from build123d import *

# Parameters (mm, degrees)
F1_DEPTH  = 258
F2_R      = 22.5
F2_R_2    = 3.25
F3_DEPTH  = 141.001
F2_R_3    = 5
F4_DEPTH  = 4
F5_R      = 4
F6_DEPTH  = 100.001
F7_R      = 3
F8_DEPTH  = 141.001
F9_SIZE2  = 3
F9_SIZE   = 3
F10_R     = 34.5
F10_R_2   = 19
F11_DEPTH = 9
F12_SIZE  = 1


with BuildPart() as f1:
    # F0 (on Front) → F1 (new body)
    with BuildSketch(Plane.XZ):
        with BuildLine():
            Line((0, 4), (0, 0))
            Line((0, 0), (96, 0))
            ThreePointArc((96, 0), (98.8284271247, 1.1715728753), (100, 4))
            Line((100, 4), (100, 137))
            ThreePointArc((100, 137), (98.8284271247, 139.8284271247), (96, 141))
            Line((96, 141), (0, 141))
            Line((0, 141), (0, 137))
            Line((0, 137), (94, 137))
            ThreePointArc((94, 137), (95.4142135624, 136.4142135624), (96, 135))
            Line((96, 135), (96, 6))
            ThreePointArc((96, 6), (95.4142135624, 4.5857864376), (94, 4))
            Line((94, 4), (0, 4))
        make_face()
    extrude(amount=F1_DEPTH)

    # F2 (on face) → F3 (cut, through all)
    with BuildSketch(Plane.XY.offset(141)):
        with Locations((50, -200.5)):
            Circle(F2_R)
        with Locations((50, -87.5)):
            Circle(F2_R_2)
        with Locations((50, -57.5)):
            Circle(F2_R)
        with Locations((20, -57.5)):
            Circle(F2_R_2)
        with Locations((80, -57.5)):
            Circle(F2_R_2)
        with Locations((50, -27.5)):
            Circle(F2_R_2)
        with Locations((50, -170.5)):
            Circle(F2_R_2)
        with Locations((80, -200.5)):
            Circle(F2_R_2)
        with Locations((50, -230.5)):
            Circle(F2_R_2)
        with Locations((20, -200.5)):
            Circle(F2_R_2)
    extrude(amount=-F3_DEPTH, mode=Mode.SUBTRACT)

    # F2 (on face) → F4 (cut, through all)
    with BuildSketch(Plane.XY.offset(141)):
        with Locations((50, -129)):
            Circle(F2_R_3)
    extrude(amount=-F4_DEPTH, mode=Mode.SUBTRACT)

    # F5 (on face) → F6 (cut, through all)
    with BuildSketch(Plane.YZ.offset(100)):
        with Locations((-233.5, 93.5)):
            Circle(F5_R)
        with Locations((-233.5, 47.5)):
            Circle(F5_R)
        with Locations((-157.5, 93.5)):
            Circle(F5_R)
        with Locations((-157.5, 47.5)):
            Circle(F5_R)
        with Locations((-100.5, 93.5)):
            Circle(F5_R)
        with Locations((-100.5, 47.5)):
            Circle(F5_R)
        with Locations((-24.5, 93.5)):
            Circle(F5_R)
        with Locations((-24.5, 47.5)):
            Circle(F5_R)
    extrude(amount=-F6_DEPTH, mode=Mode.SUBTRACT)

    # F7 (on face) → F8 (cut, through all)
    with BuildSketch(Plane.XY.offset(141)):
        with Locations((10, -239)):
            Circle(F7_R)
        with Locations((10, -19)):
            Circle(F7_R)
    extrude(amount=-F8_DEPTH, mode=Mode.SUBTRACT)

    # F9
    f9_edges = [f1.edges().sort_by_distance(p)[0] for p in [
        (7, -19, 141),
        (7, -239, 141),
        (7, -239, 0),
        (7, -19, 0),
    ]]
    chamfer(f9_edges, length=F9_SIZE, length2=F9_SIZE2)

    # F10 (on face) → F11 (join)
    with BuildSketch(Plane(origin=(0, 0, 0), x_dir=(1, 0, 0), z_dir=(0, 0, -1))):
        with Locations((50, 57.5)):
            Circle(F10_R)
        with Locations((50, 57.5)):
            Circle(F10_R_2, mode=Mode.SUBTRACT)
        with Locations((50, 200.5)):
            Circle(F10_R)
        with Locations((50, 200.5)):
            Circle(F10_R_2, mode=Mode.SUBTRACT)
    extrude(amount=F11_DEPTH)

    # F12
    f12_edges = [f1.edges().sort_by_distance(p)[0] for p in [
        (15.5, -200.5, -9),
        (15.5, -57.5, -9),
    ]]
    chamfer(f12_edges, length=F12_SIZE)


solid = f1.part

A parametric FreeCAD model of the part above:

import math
import FreeCAD as App
import Part
import Sketcher

V = App.Vector


def edges_at(feature, points):
    """Names of the edges that pass closest to the given points."""
    edges = feature.Shape.Edges
    near = lambda p: min(range(len(edges)), key=lambda i: edges[i].distToShape(Part.Vertex(*p))[0])
    return sorted({f"Edge{near(p) + 1}" for p in points})

doc = App.newDocument("Part")
body = doc.addObject("PartDesign::Body", "Body")

sketch1 = body.newObject("Sketcher::SketchObject", "Sketch")
sketch1.AttachmentSupport = (doc.getObject("XZ_Plane"), [""])
sketch1.MapMode = "FlatFace"
sketch1.addGeometry([
    Part.LineSegment(V(0, 4, 0), V(0, 0, 0)),
    Part.LineSegment(V(0, 0, 0), V(96, 0, 0)),
    Part.ArcOfCircle(Part.Circle(V(96, 4, 0), V(0, 0, 1), 4), math.radians(-90), math.radians(0)),
    Part.LineSegment(V(100, 4, 0), V(100, 137, 0)),
    Part.ArcOfCircle(Part.Circle(V(96, 137, 0), V(0, 0, 1), 4), math.radians(0), math.radians(90)),
    Part.LineSegment(V(96, 141, 0), V(0, 141, 0)),
    Part.LineSegment(V(0, 141, 0), V(0, 137, 0)),
    Part.LineSegment(V(0, 137, 0), V(94, 137, 0)),
    Part.ArcOfCircle(Part.Circle(V(94, 135, 0), V(0, 0, 1), 2), math.radians(0), math.radians(90)),
    Part.LineSegment(V(96, 135, 0), V(96, 6, 0)),
    Part.ArcOfCircle(Part.Circle(V(94, 6, 0), V(0, 0, 1), 2), math.radians(-90), math.radians(0)),
    Part.LineSegment(V(94, 4, 0), V(0, 4, 0)),
], False)
sketch1.addConstraint([
    Sketcher.Constraint("Coincident", 0, 2, 1, 1),
    Sketcher.Constraint("Tangent", 1, 2, 2, 1),
    Sketcher.Constraint("Tangent", 2, 2, 3, 1),
    Sketcher.Constraint("Tangent", 3, 2, 4, 1),
    Sketcher.Constraint("Tangent", 4, 2, 5, 1),
    Sketcher.Constraint("Coincident", 5, 2, 6, 1),
    Sketcher.Constraint("Coincident", 6, 2, 7, 1),
    Sketcher.Constraint("Tangent", 7, 2, 8, 2),
    Sketcher.Constraint("Tangent", 8, 1, 9, 1),
    Sketcher.Constraint("Tangent", 9, 2, 10, 2),
    Sketcher.Constraint("Tangent", 10, 1, 11, 1),
    Sketcher.Constraint("Coincident", 11, 2, 0, 1),
    Sketcher.Constraint("Vertical", 0),
    Sketcher.Constraint("Horizontal", 1),
    Sketcher.Constraint("Vertical", 3),
    Sketcher.Constraint("Horizontal", 5),
    Sketcher.Constraint("Vertical", 6),
    Sketcher.Constraint("Horizontal", 7),
    Sketcher.Constraint("Vertical", 9),
    Sketcher.Constraint("Horizontal", 11),
    Sketcher.Constraint("Coincident", 0, 2, -1, 1),
    Sketcher.Constraint("Equal", 2, 4),
    Sketcher.Constraint("Equal", 8, 10),
    Sketcher.Constraint("PointOnObject", 5, 2, -2),
    Sketcher.Constraint("Horizontal", 3, 2, 6, 2),
    Sketcher.Constraint("Horizontal", 2, 2, 10, 1),
    Sketcher.Constraint("Vertical", 4, 2, 8, 1),
    Sketcher.Constraint("Radius", 2, 4.0),
    Sketcher.Constraint("Radius", 8, 2.0),
    Sketcher.Constraint("DistanceX", 1, 1, 1, 2, 96.0),
    Sketcher.Constraint("DistanceY", 3, 1, 3, 2, 133.0),
])
pad1 = body.newObject("PartDesign::Pad", "Pad")
pad1.Profile = sketch1
pad1.Length = 258

sketch2 = body.newObject("Sketcher::SketchObject", "Sketch001")
sketch2.AttachmentSupport = (doc.getObject("XY_Plane"), [""])
sketch2.MapMode = "FlatFace"
sketch2.AttachmentOffset = App.Placement(V(0, 0, 141), App.Rotation())
sketch2.addGeometry([
    Part.Circle(V(50, -200.5, 0), V(0, 0, 1), 22.5),
    Part.Circle(V(50, -87.5, 0), V(0, 0, 1), 3.2),
    Part.Circle(V(50, -57.5, 0), V(0, 0, 1), 22.5),
    Part.Circle(V(20, -57.5, 0), V(0, 0, 1), 3.2),
    Part.Circle(V(80, -57.5, 0), V(0, 0, 1), 3.2),
    Part.Circle(V(50, -27.5, 0), V(0, 0, 1), 3.2),
    Part.Circle(V(50, -170.5, 0), V(0, 0, 1), 3.2),
    Part.Circle(V(80, -200.5, 0), V(0, 0, 1), 3.2),
    Part.Circle(V(50, -230.5, 0), V(0, 0, 1), 3.2),
    Part.Circle(V(20, -200.5, 0), V(0, 0, 1), 3.2),
], False)
sketch2.addConstraint([
    Sketcher.Constraint("Equal", 0, 2),
    Sketcher.Constraint("Equal", 1, 3),
    Sketcher.Constraint("Equal", 3, 4),
    Sketcher.Constraint("Equal", 4, 5),
    Sketcher.Constraint("Equal", 5, 6),
    Sketcher.Constraint("Equal", 6, 7),
    Sketcher.Constraint("Equal", 7, 8),
    Sketcher.Constraint("Equal", 8, 9),
    Sketcher.Constraint("Horizontal", 2, 3, 3, 3),
    Sketcher.Constraint("Horizontal", 3, 3, 4, 3),
    Sketcher.Constraint("Horizontal", 0, 3, 7, 3),
    Sketcher.Constraint("Horizontal", 7, 3, 9, 3),
    Sketcher.Constraint("Vertical", 0, 3, 1, 3),
    Sketcher.Constraint("Vertical", 1, 3, 2, 3),
    Sketcher.Constraint("Vertical", 2, 3, 5, 3),
    Sketcher.Constraint("Vertical", 5, 3, 6, 3),
    Sketcher.Constraint("Vertical", 4, 3, 7, 3),
    Sketcher.Constraint("Vertical", 6, 3, 8, 3),
    Sketcher.Constraint("Vertical", 3, 3, 9, 3),
    Sketcher.Constraint("Diameter", 0, 45.0),
    Sketcher.Constraint("Diameter", 1, 6.5),
    Sketcher.Constraint("DistanceX", -1, 1, 0, 3, 50.0),
    Sketcher.Constraint("DistanceX", -1, 1, 3, 3, 20.0),
    Sketcher.Constraint("DistanceX", -1, 1, 4, 3, 80.0),
    Sketcher.Constraint("DistanceY", 0, 3, 1, 3, 113.0),
    Sketcher.Constraint("DistanceY", 1, 3, 2, 3, 30.0),
    Sketcher.Constraint("DistanceY", 2, 3, 5, 3, 30.0),
    Sketcher.Constraint("DistanceY", 0, 3, 6, 3, 30.0),
    Sketcher.Constraint("DistanceY", 8, 3, 0, 3, 30.0),
    Sketcher.Constraint("DistanceY", 0, 3, -1, 1, 200.5),
])
pocket1 = body.newObject("PartDesign::Pocket", "Pocket")
pocket1.Profile = sketch2
pocket1.Type = "ThroughAll"

sketch3 = body.newObject("Sketcher::SketchObject", "Sketch002")
sketch3.AttachmentSupport = (doc.getObject("XY_Plane"), [""])
sketch3.MapMode = "FlatFace"
sketch3.AttachmentOffset = App.Placement(V(0, 0, 141), App.Rotation())
sketch3.addGeometry(Part.Circle(V(50, -129, 0), V(0, 0, 1), 5), False)
sketch3.addConstraint([
    Sketcher.Constraint("Diameter", 0, 10.0),
    Sketcher.Constraint("DistanceX", -1, 1, 0, 3, 50.0),
    Sketcher.Constraint("DistanceY", 0, 3, -1, 1, 129.0),
])
pocket2 = body.newObject("PartDesign::Pocket", "Pocket001")
pocket2.Profile = sketch3
pocket2.Length = 4

sketch4 = body.newObject("Sketcher::SketchObject", "Sketch003")
sketch4.AttachmentSupport = (doc.getObject("YZ_Plane"), [""])
sketch4.MapMode = "FlatFace"
sketch4.AttachmentOffset = App.Placement(V(0, 0, 100), App.Rotation())
sketch4.addGeometry([
    Part.Circle(V(-233.5, 93.5, 0), V(0, 0, 1), 4),
    Part.Circle(V(-233.5, 47.5, 0), V(0, 0, 1), 4),
    Part.Circle(V(-157.5, 93.5, 0), V(0, 0, 1), 4),
    Part.Circle(V(-157.5, 47.5, 0), V(0, 0, 1), 4),
    Part.Circle(V(-100.5, 93.5, 0), V(0, 0, 1), 4),
    Part.Circle(V(-100.5, 47.5, 0), V(0, 0, 1), 4),
    Part.Circle(V(-24.5, 93.5, 0), V(0, 0, 1), 4),
    Part.Circle(V(-24.5, 47.5, 0), V(0, 0, 1), 4),
], False)
sketch4.addConstraint([
    Sketcher.Constraint("Equal", 0, 1),
    Sketcher.Constraint("Equal", 1, 2),
    Sketcher.Constraint("Equal", 2, 3),
    Sketcher.Constraint("Equal", 3, 4),
    Sketcher.Constraint("Equal", 4, 5),
    Sketcher.Constraint("Equal", 5, 6),
    Sketcher.Constraint("Equal", 6, 7),
    Sketcher.Constraint("Horizontal", 0, 3, 2, 3),
    Sketcher.Constraint("Horizontal", 1, 3, 3, 3),
    Sketcher.Constraint("Horizontal", 2, 3, 4, 3),
    Sketcher.Constraint("Horizontal", 3, 3, 5, 3),
    Sketcher.Constraint("Horizontal", 4, 3, 6, 3),
    Sketcher.Constraint("Horizontal", 5, 3, 7, 3),
    Sketcher.Constraint("Vertical", 0, 3, 1, 3),
    Sketcher.Constraint("Vertical", 2, 3, 3, 3),
    Sketcher.Constraint("Vertical", 4, 3, 5, 3),
    Sketcher.Constraint("Vertical", 6, 3, 7, 3),
    Sketcher.Constraint("Diameter", 0, 8.0),
    Sketcher.Constraint("DistanceY", 1, 3, 0, 3, 46.0),
    Sketcher.Constraint("DistanceX", 0, 3, 2, 3, 76.0),
    Sketcher.Constraint("DistanceX", 2, 3, 4, 3, 57.0),
    Sketcher.Constraint("DistanceX", 4, 3, 6, 3, 76.0),
    Sketcher.Constraint("DistanceX", 0, 3, -1, 1, 233.5),
    Sketcher.Constraint("DistanceY", -1, 1, 0, 3, 93.5),
])
pocket3 = body.newObject("PartDesign::Pocket", "Pocket002")
pocket3.Profile = sketch4
pocket3.Type = "ThroughAll"

sketch5 = body.newObject("Sketcher::SketchObject", "Sketch004")
sketch5.AttachmentSupport = (doc.getObject("XY_Plane"), [""])
sketch5.MapMode = "FlatFace"
sketch5.AttachmentOffset = App.Placement(V(0, 0, 141), App.Rotation())
sketch5.addGeometry([
    Part.Circle(V(10, -239, 0), V(0, 0, 1), 3),
    Part.Circle(V(10, -19, 0), V(0, 0, 1), 3),
], False)
sketch5.addConstraint([
    Sketcher.Constraint("Equal", 0, 1),
    Sketcher.Constraint("Vertical", 0, 3, 1, 3),
    Sketcher.Constraint("Diameter", 0, 6.0),
    Sketcher.Constraint("DistanceX", -1, 1, 0, 3, 10.0),
    Sketcher.Constraint("DistanceY", 0, 3, -1, 1, 239.0),
    Sketcher.Constraint("DistanceY", 1, 3, -1, 1, 19.0),
])
pocket4 = body.newObject("PartDesign::Pocket", "Pocket003")
pocket4.Profile = sketch5
pocket4.Type = "ThroughAll"
doc.recompute()

chamfer = body.newObject("PartDesign::Chamfer", "Chamfer")
chamfer.Base = (pocket4, edges_at(pocket4, [
    (7, -19, 141),
    (7, -239, 141),
    (7, -239, 0),
    (7, -19, 0),
]))
chamfer.ChamferType = "Two distances"
chamfer.Size = 3
chamfer.Size2 = 3

sketch6 = body.newObject("Sketcher::SketchObject", "Sketch005")
sketch6.AttachmentSupport = (doc.getObject("XY_Plane"), [""])
sketch6.MapMode = "FlatFace"
sketch6.addGeometry([
    Part.Circle(V(50, -58, 0), V(0, 0, 1), 34),
    Part.Circle(V(50, -58, 0), V(0, 0, 1), 19),
    Part.Circle(V(50, -200, 0), V(0, 0, 1), 34),
    Part.Circle(V(50, -200, 0), V(0, 0, 1), 19),
], False)
sketch6.addConstraint([
    Sketcher.Constraint("Coincident", 1, 3, 0, 3),
    Sketcher.Constraint("Coincident", 3, 3, 2, 3),
    Sketcher.Constraint("Equal", 0, 2),
    Sketcher.Constraint("Equal", 1, 3),
    Sketcher.Constraint("Vertical", 1, 3, 2, 3),
    Sketcher.Constraint("Diameter", 0, 69.0),
    Sketcher.Constraint("Diameter", 1, 38.0),
    Sketcher.Constraint("DistanceX", -1, 1, 0, 3, 50.0),
    Sketcher.Constraint("DistanceY", 2, 3, 0, 3, 143.0),
    Sketcher.Constraint("DistanceY", 0, 3, -1, 1, 57.5),
])
pad2 = body.newObject("PartDesign::Pad", "Pad001")
pad2.Profile = sketch6
pad2.Length = 9
pad2.Reversed = True
doc.recompute()

chamfer2 = body.newObject("PartDesign::Chamfer", "Chamfer001")
chamfer2.Base = (pad2, edges_at(pad2, [(15.5, -200.5, -9), (15.5, -57.5, -9)]))
chamfer2.Size = 1

doc.recompute()
